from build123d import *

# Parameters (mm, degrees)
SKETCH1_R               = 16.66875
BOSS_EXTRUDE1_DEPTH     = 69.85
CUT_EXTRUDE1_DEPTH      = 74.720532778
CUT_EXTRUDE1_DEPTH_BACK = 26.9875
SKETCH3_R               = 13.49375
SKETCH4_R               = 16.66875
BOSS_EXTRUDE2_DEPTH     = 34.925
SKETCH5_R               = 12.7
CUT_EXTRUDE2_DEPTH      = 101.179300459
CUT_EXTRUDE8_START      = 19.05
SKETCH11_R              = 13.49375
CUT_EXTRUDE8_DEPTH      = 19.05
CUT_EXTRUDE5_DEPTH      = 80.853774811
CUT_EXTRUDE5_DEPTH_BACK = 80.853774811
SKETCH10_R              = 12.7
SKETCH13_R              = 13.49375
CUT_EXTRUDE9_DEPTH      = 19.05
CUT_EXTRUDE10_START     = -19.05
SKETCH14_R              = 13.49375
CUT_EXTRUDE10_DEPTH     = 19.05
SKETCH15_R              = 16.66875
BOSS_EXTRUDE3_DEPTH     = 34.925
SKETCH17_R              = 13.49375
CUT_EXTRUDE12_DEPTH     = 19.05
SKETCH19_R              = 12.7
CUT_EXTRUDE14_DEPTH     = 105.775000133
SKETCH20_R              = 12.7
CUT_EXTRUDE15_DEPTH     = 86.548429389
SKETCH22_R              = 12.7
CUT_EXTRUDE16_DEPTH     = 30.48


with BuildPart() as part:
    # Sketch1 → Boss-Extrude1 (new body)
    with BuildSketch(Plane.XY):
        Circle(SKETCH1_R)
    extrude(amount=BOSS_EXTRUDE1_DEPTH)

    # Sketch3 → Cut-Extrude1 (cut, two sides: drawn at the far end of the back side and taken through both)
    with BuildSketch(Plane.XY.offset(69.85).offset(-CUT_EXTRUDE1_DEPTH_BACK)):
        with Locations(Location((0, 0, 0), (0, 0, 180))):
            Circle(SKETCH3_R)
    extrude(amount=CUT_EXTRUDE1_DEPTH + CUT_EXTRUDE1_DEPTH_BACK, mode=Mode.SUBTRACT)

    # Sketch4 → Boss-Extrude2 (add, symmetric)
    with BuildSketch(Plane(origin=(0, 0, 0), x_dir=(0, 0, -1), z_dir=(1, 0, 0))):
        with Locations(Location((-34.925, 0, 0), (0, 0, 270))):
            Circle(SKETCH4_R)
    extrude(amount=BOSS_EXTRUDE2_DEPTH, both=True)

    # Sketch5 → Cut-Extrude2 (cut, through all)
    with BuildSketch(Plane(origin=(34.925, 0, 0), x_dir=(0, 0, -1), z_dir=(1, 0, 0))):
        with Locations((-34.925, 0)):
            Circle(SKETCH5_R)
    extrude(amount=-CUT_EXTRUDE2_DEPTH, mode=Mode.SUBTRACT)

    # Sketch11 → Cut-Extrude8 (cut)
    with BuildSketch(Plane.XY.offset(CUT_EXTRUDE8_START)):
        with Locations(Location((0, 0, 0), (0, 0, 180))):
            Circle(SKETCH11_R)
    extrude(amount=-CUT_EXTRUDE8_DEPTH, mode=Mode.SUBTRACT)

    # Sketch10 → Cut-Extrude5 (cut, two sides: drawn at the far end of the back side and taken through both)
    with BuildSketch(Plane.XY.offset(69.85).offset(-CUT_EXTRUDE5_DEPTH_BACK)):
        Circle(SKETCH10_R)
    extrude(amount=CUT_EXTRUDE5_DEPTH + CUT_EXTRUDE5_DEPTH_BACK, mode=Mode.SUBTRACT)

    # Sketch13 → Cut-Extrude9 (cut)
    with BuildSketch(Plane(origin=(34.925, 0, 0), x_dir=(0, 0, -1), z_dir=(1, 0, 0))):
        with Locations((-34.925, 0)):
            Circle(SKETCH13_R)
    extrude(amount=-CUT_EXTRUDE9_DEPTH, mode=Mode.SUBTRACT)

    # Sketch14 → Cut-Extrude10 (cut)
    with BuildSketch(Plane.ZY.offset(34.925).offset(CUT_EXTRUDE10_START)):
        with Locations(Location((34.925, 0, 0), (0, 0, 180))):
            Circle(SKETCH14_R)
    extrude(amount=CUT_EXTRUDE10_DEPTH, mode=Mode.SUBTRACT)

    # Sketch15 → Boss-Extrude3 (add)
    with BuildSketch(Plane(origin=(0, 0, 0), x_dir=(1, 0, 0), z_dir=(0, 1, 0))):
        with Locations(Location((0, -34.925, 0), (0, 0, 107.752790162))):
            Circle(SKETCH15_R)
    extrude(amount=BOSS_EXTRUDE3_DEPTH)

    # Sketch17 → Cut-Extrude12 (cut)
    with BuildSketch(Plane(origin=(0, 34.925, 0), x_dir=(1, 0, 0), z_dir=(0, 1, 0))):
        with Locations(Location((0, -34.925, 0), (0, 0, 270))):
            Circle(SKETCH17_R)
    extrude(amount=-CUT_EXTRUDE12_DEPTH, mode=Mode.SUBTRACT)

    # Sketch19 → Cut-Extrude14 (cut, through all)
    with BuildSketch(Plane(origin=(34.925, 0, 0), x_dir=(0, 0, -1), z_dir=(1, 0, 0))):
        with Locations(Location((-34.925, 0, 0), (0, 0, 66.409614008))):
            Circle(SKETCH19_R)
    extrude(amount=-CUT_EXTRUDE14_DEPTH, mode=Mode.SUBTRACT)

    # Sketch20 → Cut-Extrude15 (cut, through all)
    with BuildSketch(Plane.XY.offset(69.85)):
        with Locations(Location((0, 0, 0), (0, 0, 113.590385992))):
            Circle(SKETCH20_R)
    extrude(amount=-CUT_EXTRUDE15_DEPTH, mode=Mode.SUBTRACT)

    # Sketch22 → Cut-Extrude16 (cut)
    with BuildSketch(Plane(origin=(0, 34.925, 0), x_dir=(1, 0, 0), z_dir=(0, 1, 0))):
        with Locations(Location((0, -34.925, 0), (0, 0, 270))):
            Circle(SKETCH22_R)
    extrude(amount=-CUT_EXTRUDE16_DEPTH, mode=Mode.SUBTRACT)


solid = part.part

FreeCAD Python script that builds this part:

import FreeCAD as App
import Part
import Sketcher

V = App.Vector
Q = App.Units.Quantity

doc = App.newDocument("Part")
params = doc.addObject("Spreadsheet::Sheet", "Params")
for row, (alias, value) in enumerate([
    ("sketch1_diameter", "1.3125 in"),
    ("pad1_length", "2.75 in"),
    ("sketch2_diameter", "1.0625 in"),
    ("pocket1_length", "74.720533 mm"),
    ("pocket1_length2", "1.0625 in"),
    ("sketch3_diameter", "1.3125 in"),
    ("pad2_length", "2.75 in"),
    ("sketch4_diameter", "1 in"),
    ("sketch5_diameter", "1.0625 in"),
    ("pocket3_length", "0.75 in"),
    ("sketch6_diameter", "1 in"),
    ("sketch7_diameter", "1.0625 in"),
    ("pocket5_length", "0.75 in"),
    ("sketch8_diameter", "1.0625 in"),
    ("pocket6_length", "0.75 in"),
    ("sketch9_diameter", "1.3125 in"),
    ("pad3_length", "1.375 in"),
    ("sketch10_diameter", "1.0625 in"),
    ("pocket7_length", "0.75 in"),
    ("sketch11_diameter", "1 in"),
    ("sketch12_diameter", "1 in"),
    ("sketch13_diameter", "1 in"),
    ("pocket10_length", "1.2 in"),
], start=1):
    params.set(f"A{row}", alias)
    params.set(f"B{row}", "=" + value)
    params.setAlias(f"B{row}", alias)

body = doc.addObject("PartDesign::Body", "Body")

sketch1 = body.newObject("Sketcher::SketchObject", "Sketch")
sketch1.AttachmentSupport = (doc.getObject("XY_Plane"), [""])
sketch1.MapMode = "FlatFace"
sketch1.addGeometry(Part.Circle(V(0, 0, 0), V(0, 0, 1), 16.66875), False)
sketch1.addConstraint(Sketcher.Constraint("Coincident", 0, 3, -1, 1))
sketch1.addConstraint(Sketcher.Constraint("Diameter", 0, Q("1.3125 in")))
sketch1.setExpression("Constraints[1]", "Params.sketch1_diameter")
pad1 = body.newObject("PartDesign::Pad", "Pad")
pad1.Profile = sketch1
pad1.setExpression("Length", "Params.pad1_length")

sketch2 = body.newObject("Sketcher::SketchObject", "Sketch001")
sketch2.AttachmentSupport = (doc.getObject("XY_Plane"), [""])
sketch2.MapMode = "FlatFace"
sketch2.AttachmentOffset = App.Placement(V(0, 0, 2.75 * 25.4), App.Rotation())
sketch2.addGeometry(Part.Circle(V(0, 0, 0), V(0, 0, 1), 13.49375), False)
sketch2.addConstraint(Sketcher.Constraint("Coincident", 0, 3, -1, 1))
sketch2.addConstraint(Sketcher.Constraint("Diameter", 0, Q("1.0625 in")))
sketch2.setExpression("Constraints[1]", "Params.sketch2_diameter")
pocket1 = body.newObject("PartDesign::Pocket", "Pocket")
pocket1.Profile = sketch2
pocket1.Type = "TwoLengths"
pocket1.setExpression("Length", "Params.pocket1_length")
pocket1.setExpression("Length2", "Params.pocket1_length2")
pocket1.Reversed = True

sketch3 = body.newObject("Sketcher::SketchObject", "Sketch002")
sketch3.AttachmentSupport = (doc.getObject("YZ_Plane"), [""])
sketch3.MapMode = "FlatFace"
sketch3.addGeometry(Part.Circle(V(0, 34.925, 0), V(0, 0, 1), 16.66875), False)
sketch3.addConstraint(Sketcher.Constraint("PointOnObject", 0, 3, -2))
sketch3.addConstraint(Sketcher.Constraint("Diameter", 0, Q("1.3125 in")))
sketch3.addConstraint(Sketcher.Constraint("DistanceY", -1, 1, 0, 3, Q("1.375 in")))
sketch3.setExpression("Constraints[1]", "Params.sketch3_diameter")
pad2 = body.newObject("PartDesign::Pad", "Pad001")
pad2.Profile = sketch3
pad2.setExpression("Length", "Params.pad2_length")
pad2.Midplane = True

sketch4 = body.newObject("Sketcher::SketchObject", "Sketch003")
sketch4.AttachmentSupport = (doc.getObject("YZ_Plane"), [""])
sketch4.MapMode = "FlatFace"
sketch4.AttachmentOffset = App.Placement(V(0, 0, 1.375 * 25.4), App.Rotation())
sketch4.addGeometry(Part.Circle(V(0, 34.925, 0), V(0, 0, 1), 12.7), False)
sketch4.addConstraint(Sketcher.Constraint("PointOnObject", 0, 3, -2))
sketch4.addConstraint(Sketcher.Constraint("Diameter", 0, Q("1 in")))
sketch4.addConstraint(Sketcher.Constraint("DistanceY", -1, 1, 0, 3, Q("1.375 in")))
sketch4.setExpression("Constraints[1]", "Params.sketch4_diameter")
pocket2 = body.newObject("PartDesign::Pocket", "Pocket001")
pocket2.Profile = sketch4
pocket2.Type = "ThroughAll"

sketch5 = body.newObject("Sketcher::SketchObject", "Sketch004")
sketch5.AttachmentSupport = (doc.getObject("XY_Plane"), [""])
sketch5.MapMode = "FlatFace"
sketch5.AttachmentOffset = App.Placement(V(0, 0, 0.75 * 25.4), App.Rotation())
sketch5.addGeometry(Part.Circle(V(0, 0, 0), V(0, 0, 1), 13.49375), False)
sketch5.addConstraint(Sketcher.Constraint("Coincident", 0, 3, -1, 1))
sketch5.addConstraint(Sketcher.Constraint("Diameter", 0, Q("1.0625 in")))
sketch5.setExpression("Constraints[1]", "Params.sketch5_diameter")
pocket3 = body.newObject("PartDesign::Pocket", "Pocket002")
pocket3.Profile = sketch5
pocket3.setExpression("Length", "Params.pocket3_length")

sketch6 = body.newObject("Sketcher::SketchObject", "Sketch005")
sketch6.AttachmentSupport = (doc.getObject("XY_Plane"), [""])
sketch6.MapMode = "FlatFace"
sketch6.AttachmentOffset = App.Placement(V(0, 0, 2.75 * 25.4), App.Rotation())
sketch6.addGeometry(Part.Circle(V(0, 0, 0), V(0, 0, 1), 12.7), False)
sketch6.addConstraint(Sketcher.Constraint("Coincident", 0, 3, -1, 1))
sketch6.addConstraint(Sketcher.Constraint("Diameter", 0, Q("1 in")))
sketch6.setExpression("Constraints[1]", "Params.sketch6_diameter")
pocket4 = body.newObject("PartDesign::Pocket", "Pocket003")
pocket4.Profile = sketch6
pocket4.Type = "ThroughAll"
pocket4.Midplane = True

sketch7 = body.newObject("Sketcher::SketchObject", "Sketch006")
sketch7.AttachmentSupport = (doc.getObject("YZ_Plane"), [""])
sketch7.MapMode = "FlatFace"
sketch7.AttachmentOffset = App.Placement(V(0, 0, 1.375 * 25.4), App.Rotation())
sketch7.addGeometry(Part.Circle(V(0, 34.925, 0), V(0, 0, 1), 13.49375), False)
sketch7.addConstraint(Sketcher.Constraint("PointOnObject", 0, 3, -2))
sketch7.addConstraint(Sketcher.Constraint("Diameter", 0, Q("1.0625 in")))
sketch7.addConstraint(Sketcher.Constraint("DistanceY", -1, 1, 0, 3, Q("1.375 in")))
sketch7.setExpression("Constraints[1]", "Params.sketch7_diameter")
pocket5 = body.newObject("PartDesign::Pocket", "Pocket004")
pocket5.Profile = sketch7
pocket5.setExpression("Length", "Params.pocket5_length")

sketch8 = body.newObject("Sketcher::SketchObject", "Sketch007")
sketch8.AttachmentSupport = (doc.getObject("YZ_Plane"), [""])
sketch8.MapMode = "FlatFace"
sketch8.AttachmentOffset = App.Placement(V(0, 0, -0.625 * 25.4), App.Rotation())
sketch8.addGeometry(Part.Circle(V(0, 34.925, 0), V(0, 0, 1), 13.49375), False)
sketch8.addConstraint(Sketcher.Constraint("PointOnObject", 0, 3, -2))
sketch8.addConstraint(Sketcher.Constraint("Diameter", 0, Q("1.0625 in")))
sketch8.addConstraint(Sketcher.Constraint("DistanceY", -1, 1, 0, 3, Q("1.375 in")))
sketch8.setExpression("Constraints[1]", "Params.sketch8_diameter")
pocket6 = body.newObject("PartDesign::Pocket", "Pocket005")
pocket6.Profile = sketch8
pocket6.setExpression("Length", "Params.pocket6_length")

sketch9 = body.newObject("Sketcher::SketchObject", "Sketch008")
sketch9.AttachmentSupport = (doc.getObject("XZ_Plane"), [""])
sketch9.MapMode = "FlatFace"
sketch9.addGeometry(Part.Circle(V(0, 34.925, 0), V(0, 0, 1), 16.66875), False)
sketch9.addConstraint(Sketcher.Constraint("PointOnObject", 0, 3, -2))
sketch9.addConstraint(Sketcher.Constraint("Diameter", 0, Q("1.3125 in")))
sketch9.addConstraint(Sketcher.Constraint("DistanceY", -1, 1, 0, 3, Q("1.375 in")))
sketch9.setExpression("Constraints[1]", "Params.sketch9_diameter")
pad3 = body.newObject("PartDesign::Pad", "Pad002")
pad3.Profile = sketch9
pad3.setExpression("Length", "Params.pad3_length")
pad3.Reversed = True

sketch10 = body.newObject("Sketcher::SketchObject", "Sketch009")
sketch10.AttachmentSupport = (doc.getObject("XZ_Plane"), [""])
sketch10.MapMode = "FlatFace"
sketch10.AttachmentOffset = App.Placement(V(0, 0, -1.375 * 25.4), App.Rotation())
sketch10.addGeometry(Part.Circle(V(0, 34.925, 0), V(0, 0, 1), 13.49375), False)
sketch10.addConstraint(Sketcher.Constraint("PointOnObject", 0, 3, -2))
sketch10.addConstraint(Sketcher.Constraint("Diameter", 0, Q("1.0625 in")))
sketch10.addConstraint(Sketcher.Constraint("DistanceY", -1, 1, 0, 3, Q("1.375 in")))
sketch10.setExpression("Constraints[1]", "Params.sketch10_diameter")
pocket7 = body.newObject("PartDesign::Pocket", "Pocket006")
pocket7.Profile = sketch10
pocket7.setExpression("Length", "Params.pocket7_length")
pocket7.Reversed = True

sketch11 = body.newObject("Sketcher::SketchObject", "Sketch010")
sketch11.AttachmentSupport = (doc.getObject("YZ_Plane"), [""])
sketch11.MapMode = "FlatFace"
sketch11.AttachmentOffset = App.Placement(V(0, 0, 1.375 * 25.4), App.Rotation())
sketch11.addGeometry(Part.Circle(V(0, 34.925, 0), V(0, 0, 1), 12.7), False)
sketch11.addConstraint(Sketcher.Constraint("PointOnObject", 0, 3, -2))
sketch11.addConstraint(Sketcher.Constraint("Diameter", 0, Q("1 in")))
sketch11.addConstraint(Sketcher.Constraint("DistanceY", -1, 1, 0, 3, Q("1.375 in")))
sketch11.setExpression("Constraints[1]", "Params.sketch11_diameter")
pocket8 = body.newObject("PartDesign::Pocket", "Pocket007")
pocket8.Profile = sketch11
pocket8.Type = "ThroughAll"

sketch12 = body.newObject("Sketcher::SketchObject", "Sketch011")
sketch12.AttachmentSupport = (doc.getObject("XY_Plane"), [""])
sketch12.MapMode = "FlatFace"
sketch12.AttachmentOffset = App.Placement(V(0, 0, 2.75 * 25.4), App.Rotation())
sketch12.addGeometry(Part.Circle(V(0, 0, 0), V(0, 0, 1), 12.7), False)
sketch12.addConstraint(Sketcher.Constraint("Coincident", 0, 3, -1, 1))
sketch12.addConstraint(Sketcher.Constraint("Diameter", 0, Q("1 in")))
sketch12.setExpression("Constraints[1]", "Params.sketch12_diameter")
pocket9 = body.newObject("PartDesign::Pocket", "Pocket008")
pocket9.Profile = sketch12
pocket9.Type = "ThroughAll"

sketch13 = body.newObject("Sketcher::SketchObject", "Sketch012")
sketch13.AttachmentSupport = (doc.getObject("XZ_Plane"), [""])
sketch13.MapMode = "FlatFace"
sketch13.AttachmentOffset = App.Placement(V(0, 0, -1.375 * 25.4), App.Rotation())
sketch13.addGeometry(Part.Circle(V(0, 34.925, 0), V(0, 0, 1), 12.7), False)
sketch13.addConstraint(Sketcher.Constraint("PointOnObject", 0, 3, -2))
sketch13.addConstraint(Sketcher.Constraint("Diameter", 0, Q("1 in")))
sketch13.addConstraint(Sketcher.Constraint("DistanceY", -1, 1, 0, 3, Q("1.375 in")))
sketch13.setExpression("Constraints[1]", "Params.sketch13_diameter")
pocket10 = body.newObject("PartDesign::Pocket", "Pocket009")
pocket10.Profile = sketch13
pocket10.setExpression("Length", "Params.pocket10_length")
pocket10.Reversed = True

doc.recompute()
